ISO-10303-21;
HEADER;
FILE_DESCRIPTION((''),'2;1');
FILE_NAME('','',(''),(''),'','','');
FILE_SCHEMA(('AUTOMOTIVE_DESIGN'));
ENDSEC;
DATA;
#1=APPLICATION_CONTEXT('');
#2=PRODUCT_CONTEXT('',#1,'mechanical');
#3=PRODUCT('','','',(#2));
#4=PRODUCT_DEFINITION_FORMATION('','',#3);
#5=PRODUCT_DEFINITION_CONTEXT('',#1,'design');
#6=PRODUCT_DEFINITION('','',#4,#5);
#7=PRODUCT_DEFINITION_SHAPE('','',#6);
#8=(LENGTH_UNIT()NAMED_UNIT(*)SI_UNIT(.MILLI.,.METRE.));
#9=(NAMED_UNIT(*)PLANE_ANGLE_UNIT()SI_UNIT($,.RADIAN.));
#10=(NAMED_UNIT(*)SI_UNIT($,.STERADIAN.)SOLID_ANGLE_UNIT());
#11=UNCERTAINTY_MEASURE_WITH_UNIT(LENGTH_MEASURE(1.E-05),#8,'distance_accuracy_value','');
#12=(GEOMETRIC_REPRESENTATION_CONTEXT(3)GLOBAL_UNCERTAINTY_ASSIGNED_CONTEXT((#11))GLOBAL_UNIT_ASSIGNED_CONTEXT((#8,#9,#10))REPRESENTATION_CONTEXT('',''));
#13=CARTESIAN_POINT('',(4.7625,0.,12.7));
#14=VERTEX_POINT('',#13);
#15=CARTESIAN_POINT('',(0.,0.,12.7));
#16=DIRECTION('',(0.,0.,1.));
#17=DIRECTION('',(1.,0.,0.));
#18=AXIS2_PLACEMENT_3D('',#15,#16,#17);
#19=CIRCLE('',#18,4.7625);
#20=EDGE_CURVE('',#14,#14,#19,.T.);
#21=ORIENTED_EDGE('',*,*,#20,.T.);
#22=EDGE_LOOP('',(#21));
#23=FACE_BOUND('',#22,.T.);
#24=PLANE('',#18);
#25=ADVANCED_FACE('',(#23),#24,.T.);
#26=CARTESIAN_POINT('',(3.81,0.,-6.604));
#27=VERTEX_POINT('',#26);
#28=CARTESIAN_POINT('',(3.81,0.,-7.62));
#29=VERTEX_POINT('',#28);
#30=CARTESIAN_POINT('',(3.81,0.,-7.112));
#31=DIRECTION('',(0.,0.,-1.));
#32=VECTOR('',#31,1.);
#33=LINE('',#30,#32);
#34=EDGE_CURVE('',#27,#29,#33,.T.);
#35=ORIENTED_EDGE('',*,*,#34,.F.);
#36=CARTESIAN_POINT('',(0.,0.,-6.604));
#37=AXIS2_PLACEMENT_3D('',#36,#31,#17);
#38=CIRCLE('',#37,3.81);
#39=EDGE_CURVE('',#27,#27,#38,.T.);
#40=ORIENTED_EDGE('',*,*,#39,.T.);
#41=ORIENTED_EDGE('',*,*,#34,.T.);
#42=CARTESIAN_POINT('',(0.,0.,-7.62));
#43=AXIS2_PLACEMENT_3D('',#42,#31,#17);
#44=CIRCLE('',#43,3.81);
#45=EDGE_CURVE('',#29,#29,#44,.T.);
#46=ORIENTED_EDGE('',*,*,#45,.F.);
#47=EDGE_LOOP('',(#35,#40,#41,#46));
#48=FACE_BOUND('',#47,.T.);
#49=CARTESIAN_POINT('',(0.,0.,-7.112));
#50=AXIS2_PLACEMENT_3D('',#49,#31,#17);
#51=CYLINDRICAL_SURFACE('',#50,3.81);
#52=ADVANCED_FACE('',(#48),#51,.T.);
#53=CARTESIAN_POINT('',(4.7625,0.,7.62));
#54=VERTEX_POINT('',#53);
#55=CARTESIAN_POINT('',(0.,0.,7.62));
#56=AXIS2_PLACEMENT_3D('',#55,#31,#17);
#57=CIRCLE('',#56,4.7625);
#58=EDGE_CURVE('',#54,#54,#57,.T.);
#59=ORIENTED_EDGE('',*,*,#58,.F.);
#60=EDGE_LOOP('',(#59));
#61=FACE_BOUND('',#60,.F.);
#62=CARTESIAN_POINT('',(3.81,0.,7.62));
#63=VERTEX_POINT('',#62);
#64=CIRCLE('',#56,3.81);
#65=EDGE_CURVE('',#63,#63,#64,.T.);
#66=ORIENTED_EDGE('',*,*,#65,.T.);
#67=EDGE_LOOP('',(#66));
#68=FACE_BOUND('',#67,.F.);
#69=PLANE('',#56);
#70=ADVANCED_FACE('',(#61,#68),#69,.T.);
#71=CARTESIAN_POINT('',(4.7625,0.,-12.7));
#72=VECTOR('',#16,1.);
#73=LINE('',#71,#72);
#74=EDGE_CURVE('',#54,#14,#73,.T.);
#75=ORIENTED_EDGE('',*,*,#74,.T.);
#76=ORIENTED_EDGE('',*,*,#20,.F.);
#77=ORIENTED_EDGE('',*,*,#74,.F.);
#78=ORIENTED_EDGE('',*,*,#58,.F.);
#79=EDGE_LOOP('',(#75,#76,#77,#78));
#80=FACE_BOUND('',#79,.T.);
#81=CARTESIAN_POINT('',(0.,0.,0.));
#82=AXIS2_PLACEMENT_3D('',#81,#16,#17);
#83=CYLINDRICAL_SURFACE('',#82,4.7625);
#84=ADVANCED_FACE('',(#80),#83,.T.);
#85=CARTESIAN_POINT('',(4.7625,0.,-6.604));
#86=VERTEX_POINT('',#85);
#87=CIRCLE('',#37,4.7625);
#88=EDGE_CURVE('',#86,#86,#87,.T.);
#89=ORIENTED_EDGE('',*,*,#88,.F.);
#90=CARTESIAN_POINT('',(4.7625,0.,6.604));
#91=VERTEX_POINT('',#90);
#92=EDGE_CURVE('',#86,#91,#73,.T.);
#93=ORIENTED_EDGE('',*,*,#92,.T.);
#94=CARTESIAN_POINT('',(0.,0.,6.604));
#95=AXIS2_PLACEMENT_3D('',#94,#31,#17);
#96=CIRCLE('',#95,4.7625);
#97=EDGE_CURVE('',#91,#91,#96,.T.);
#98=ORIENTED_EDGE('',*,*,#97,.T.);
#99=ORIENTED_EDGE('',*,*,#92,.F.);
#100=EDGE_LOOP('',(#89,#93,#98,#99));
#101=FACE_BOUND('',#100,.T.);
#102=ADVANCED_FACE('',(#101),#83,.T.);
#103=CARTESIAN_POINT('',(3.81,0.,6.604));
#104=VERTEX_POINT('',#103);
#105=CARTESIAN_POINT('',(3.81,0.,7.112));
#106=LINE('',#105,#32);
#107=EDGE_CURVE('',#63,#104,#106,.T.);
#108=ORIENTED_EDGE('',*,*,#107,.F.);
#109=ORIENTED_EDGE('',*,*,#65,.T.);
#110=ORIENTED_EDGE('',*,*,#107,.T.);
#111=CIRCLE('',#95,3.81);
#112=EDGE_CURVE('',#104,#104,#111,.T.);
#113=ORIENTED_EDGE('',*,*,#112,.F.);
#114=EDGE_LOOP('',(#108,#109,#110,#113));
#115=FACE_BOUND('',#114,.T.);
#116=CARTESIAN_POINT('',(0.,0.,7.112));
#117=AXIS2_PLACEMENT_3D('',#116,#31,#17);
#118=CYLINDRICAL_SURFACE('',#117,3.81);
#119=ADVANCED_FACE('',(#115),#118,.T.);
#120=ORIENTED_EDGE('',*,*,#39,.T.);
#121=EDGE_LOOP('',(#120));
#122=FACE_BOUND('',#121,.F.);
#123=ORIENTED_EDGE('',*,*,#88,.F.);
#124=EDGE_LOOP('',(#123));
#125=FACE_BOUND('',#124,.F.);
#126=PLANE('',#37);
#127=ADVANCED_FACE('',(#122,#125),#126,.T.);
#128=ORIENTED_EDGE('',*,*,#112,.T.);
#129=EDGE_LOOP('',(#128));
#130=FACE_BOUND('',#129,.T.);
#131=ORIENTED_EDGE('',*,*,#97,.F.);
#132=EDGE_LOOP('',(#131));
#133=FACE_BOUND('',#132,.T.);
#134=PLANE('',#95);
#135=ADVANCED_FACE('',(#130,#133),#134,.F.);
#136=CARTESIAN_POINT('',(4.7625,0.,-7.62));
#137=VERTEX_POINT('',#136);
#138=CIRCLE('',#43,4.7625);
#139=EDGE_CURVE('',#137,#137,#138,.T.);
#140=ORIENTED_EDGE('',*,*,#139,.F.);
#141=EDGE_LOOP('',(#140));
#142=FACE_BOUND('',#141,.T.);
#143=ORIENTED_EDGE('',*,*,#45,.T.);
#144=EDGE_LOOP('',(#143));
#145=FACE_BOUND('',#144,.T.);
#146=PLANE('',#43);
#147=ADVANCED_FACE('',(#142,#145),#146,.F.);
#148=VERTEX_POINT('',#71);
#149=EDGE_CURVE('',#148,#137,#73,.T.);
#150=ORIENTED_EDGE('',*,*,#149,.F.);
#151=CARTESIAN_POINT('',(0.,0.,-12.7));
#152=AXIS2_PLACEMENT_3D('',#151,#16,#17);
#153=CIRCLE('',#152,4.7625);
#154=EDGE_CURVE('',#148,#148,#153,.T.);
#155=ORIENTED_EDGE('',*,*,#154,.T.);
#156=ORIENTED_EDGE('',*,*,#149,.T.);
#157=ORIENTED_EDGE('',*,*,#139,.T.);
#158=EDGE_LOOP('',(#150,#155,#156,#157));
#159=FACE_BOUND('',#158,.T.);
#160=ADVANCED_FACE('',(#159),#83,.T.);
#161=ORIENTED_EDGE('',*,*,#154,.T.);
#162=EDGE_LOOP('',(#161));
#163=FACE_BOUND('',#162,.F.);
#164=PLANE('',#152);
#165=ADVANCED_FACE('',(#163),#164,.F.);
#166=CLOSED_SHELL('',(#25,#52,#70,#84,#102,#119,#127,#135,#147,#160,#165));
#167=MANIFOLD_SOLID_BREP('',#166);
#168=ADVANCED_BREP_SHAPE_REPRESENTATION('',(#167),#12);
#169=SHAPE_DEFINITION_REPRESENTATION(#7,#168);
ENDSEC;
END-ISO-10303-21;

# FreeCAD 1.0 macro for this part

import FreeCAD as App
import Part
import Sketcher

V = App.Vector
Q = App.Units.Quantity


def add_polygon(sketch, points):
    """Adds a closed chain of lines whose ends are joined by coincident constraints."""
    first, n = sketch.GeometryCount, len(points)
    for a, b in zip(points, points[1:] + points[:1]):
        sketch.addGeometry(Part.LineSegment(App.Vector(*a, 0), App.Vector(*b, 0)), False)
    for i in range(n):
        sketch.addConstraint(Sketcher.Constraint("Coincident", first + i, 2, first + (i + 1) % n, 1))

doc = App.newDocument("Part")
body = doc.addObject("PartDesign::Body", "Body")

# Sketch on XY plane
sketch1 = body.newObject("Sketcher::SketchObject", "Sketch")
sketch1.AttachmentSupport = (doc.getObject("XY_Plane"), [""])
sketch1.MapMode = "FlatFace"
sketch1.addGeometry(Part.Circle(V(0, 0, 0), V(0, 0, 1), 4.8), False)
sketch1.addConstraint([
    Sketcher.Constraint("Coincident", 0, 3, -1, 1),
    Sketcher.Constraint("Diameter", 0, Q("0.375 in")),
])
pad1 = body.newObject("PartDesign::Pad", "Pad")
pad1.Profile = sketch1
pad1.Length = Q("1 in")
pad1.Midplane = True

# Sketch on XZ plane
sketch2 = body.newObject("Sketcher::SketchObject", "Sketch001")
sketch2.AttachmentSupport = (doc.getObject("XZ_Plane"), [""])
sketch2.MapMode = "FlatFace"
add_polygon(sketch2, [(3.8, -7.6), (3.8, -6.6), (4.8, -6.6), (4.8, -7.6)])  # lines 0-3
add_polygon(sketch2, [(3.8, 6.6), (3.8, 7.6), (4.8, 7.6), (4.8, 6.6)])  # lines 4-7
sketch2.addConstraint([
    Sketcher.Constraint("Vertical", 0),
    Sketcher.Constraint("Horizontal", 1),
    Sketcher.Constraint("Vertical", 2),
    Sketcher.Constraint("Horizontal", 3),
    Sketcher.Constraint("Vertical", 4),
    Sketcher.Constraint("Horizontal", 5),
    Sketcher.Constraint("Vertical", 6),
    Sketcher.Constraint("Horizontal", 7),
    Sketcher.Constraint("Symmetric", 3, 2, 4, 2, -1),
    Sketcher.Constraint("Symmetric", 1, 2, 6, 2, -1),
    Sketcher.Constraint("DistanceY", 0, 1, 0, 2, Q("0.04 in")),
    Sketcher.Constraint("DistanceY", 2, 2, -1, 1, Q("0.3 in")),
    Sketcher.Constraint("DistanceX", -1, 1, 0, 2, Q("0.15 in")),
    Sketcher.Constraint("DistanceX", 1, 1, 1, 2, Q("0.0375 in")),
])
groove = body.newObject("PartDesign::Groove", "Groove")
groove.Profile = sketch2
groove.ReferenceAxis = (sketch2, ["V_Axis"])
groove.Angle = 360

doc.recompute()
